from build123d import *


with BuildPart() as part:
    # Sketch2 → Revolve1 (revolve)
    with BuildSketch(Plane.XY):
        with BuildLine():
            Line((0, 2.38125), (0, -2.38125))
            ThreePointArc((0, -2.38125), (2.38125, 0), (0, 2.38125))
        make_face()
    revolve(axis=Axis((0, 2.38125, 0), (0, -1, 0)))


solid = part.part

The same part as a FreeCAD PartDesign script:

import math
import FreeCAD as App
import Part
import Sketcher

V = App.Vector
Q = App.Units.Quantity

doc = App.newDocument("Part")
body = doc.addObject("PartDesign::Body", "Body")

# Sketch on XY plane
sketch1 = doc.addObject("Sketcher::SketchObject", "Sketch")
body.addObject(sketch1)
sketch1.AttachmentSupport = (doc.XY_Plane, [""])
sketch1.MapMode = "FlatFace"
sketch1.addGeometry(Part.LineSegment(V(0, 2.4, 0), V(0, -2.4, 0)), False)
sketch1.addGeometry(Part.ArcOfCircle(Part.Circle(V(0, 0, 0), V(0, 0, 1), 2.4), math.radians(-90), math.radians(90)), False)
sketch1.addConstraint(Sketcher.Constraint("Coincident", 0, 1, 1, 2))
sketch1.addConstraint(Sketcher.Constraint("Coincident", 1, 1, 0, 2))
sketch1.addConstraint(Sketcher.Constraint("Vertical", 0))
sketch1.addConstraint(Sketcher.Constraint("Coincident", 1, 3, -1, 1))
sketch1.addConstraint(Sketcher.Constraint("PointOnObject", 0, 1, -2))
sketch1.addConstraint(Sketcher.Constraint("Radius", 1, Q("0.09375 in")))
revolution = doc.addObject("PartDesign::Revolution", "Revolution")
body.addObject(revolution)
revolution.Profile = sketch1
revolution.ReferenceAxis = (sketch1, ["V_Axis"])
revolution.Angle = 360

doc.recompute()
